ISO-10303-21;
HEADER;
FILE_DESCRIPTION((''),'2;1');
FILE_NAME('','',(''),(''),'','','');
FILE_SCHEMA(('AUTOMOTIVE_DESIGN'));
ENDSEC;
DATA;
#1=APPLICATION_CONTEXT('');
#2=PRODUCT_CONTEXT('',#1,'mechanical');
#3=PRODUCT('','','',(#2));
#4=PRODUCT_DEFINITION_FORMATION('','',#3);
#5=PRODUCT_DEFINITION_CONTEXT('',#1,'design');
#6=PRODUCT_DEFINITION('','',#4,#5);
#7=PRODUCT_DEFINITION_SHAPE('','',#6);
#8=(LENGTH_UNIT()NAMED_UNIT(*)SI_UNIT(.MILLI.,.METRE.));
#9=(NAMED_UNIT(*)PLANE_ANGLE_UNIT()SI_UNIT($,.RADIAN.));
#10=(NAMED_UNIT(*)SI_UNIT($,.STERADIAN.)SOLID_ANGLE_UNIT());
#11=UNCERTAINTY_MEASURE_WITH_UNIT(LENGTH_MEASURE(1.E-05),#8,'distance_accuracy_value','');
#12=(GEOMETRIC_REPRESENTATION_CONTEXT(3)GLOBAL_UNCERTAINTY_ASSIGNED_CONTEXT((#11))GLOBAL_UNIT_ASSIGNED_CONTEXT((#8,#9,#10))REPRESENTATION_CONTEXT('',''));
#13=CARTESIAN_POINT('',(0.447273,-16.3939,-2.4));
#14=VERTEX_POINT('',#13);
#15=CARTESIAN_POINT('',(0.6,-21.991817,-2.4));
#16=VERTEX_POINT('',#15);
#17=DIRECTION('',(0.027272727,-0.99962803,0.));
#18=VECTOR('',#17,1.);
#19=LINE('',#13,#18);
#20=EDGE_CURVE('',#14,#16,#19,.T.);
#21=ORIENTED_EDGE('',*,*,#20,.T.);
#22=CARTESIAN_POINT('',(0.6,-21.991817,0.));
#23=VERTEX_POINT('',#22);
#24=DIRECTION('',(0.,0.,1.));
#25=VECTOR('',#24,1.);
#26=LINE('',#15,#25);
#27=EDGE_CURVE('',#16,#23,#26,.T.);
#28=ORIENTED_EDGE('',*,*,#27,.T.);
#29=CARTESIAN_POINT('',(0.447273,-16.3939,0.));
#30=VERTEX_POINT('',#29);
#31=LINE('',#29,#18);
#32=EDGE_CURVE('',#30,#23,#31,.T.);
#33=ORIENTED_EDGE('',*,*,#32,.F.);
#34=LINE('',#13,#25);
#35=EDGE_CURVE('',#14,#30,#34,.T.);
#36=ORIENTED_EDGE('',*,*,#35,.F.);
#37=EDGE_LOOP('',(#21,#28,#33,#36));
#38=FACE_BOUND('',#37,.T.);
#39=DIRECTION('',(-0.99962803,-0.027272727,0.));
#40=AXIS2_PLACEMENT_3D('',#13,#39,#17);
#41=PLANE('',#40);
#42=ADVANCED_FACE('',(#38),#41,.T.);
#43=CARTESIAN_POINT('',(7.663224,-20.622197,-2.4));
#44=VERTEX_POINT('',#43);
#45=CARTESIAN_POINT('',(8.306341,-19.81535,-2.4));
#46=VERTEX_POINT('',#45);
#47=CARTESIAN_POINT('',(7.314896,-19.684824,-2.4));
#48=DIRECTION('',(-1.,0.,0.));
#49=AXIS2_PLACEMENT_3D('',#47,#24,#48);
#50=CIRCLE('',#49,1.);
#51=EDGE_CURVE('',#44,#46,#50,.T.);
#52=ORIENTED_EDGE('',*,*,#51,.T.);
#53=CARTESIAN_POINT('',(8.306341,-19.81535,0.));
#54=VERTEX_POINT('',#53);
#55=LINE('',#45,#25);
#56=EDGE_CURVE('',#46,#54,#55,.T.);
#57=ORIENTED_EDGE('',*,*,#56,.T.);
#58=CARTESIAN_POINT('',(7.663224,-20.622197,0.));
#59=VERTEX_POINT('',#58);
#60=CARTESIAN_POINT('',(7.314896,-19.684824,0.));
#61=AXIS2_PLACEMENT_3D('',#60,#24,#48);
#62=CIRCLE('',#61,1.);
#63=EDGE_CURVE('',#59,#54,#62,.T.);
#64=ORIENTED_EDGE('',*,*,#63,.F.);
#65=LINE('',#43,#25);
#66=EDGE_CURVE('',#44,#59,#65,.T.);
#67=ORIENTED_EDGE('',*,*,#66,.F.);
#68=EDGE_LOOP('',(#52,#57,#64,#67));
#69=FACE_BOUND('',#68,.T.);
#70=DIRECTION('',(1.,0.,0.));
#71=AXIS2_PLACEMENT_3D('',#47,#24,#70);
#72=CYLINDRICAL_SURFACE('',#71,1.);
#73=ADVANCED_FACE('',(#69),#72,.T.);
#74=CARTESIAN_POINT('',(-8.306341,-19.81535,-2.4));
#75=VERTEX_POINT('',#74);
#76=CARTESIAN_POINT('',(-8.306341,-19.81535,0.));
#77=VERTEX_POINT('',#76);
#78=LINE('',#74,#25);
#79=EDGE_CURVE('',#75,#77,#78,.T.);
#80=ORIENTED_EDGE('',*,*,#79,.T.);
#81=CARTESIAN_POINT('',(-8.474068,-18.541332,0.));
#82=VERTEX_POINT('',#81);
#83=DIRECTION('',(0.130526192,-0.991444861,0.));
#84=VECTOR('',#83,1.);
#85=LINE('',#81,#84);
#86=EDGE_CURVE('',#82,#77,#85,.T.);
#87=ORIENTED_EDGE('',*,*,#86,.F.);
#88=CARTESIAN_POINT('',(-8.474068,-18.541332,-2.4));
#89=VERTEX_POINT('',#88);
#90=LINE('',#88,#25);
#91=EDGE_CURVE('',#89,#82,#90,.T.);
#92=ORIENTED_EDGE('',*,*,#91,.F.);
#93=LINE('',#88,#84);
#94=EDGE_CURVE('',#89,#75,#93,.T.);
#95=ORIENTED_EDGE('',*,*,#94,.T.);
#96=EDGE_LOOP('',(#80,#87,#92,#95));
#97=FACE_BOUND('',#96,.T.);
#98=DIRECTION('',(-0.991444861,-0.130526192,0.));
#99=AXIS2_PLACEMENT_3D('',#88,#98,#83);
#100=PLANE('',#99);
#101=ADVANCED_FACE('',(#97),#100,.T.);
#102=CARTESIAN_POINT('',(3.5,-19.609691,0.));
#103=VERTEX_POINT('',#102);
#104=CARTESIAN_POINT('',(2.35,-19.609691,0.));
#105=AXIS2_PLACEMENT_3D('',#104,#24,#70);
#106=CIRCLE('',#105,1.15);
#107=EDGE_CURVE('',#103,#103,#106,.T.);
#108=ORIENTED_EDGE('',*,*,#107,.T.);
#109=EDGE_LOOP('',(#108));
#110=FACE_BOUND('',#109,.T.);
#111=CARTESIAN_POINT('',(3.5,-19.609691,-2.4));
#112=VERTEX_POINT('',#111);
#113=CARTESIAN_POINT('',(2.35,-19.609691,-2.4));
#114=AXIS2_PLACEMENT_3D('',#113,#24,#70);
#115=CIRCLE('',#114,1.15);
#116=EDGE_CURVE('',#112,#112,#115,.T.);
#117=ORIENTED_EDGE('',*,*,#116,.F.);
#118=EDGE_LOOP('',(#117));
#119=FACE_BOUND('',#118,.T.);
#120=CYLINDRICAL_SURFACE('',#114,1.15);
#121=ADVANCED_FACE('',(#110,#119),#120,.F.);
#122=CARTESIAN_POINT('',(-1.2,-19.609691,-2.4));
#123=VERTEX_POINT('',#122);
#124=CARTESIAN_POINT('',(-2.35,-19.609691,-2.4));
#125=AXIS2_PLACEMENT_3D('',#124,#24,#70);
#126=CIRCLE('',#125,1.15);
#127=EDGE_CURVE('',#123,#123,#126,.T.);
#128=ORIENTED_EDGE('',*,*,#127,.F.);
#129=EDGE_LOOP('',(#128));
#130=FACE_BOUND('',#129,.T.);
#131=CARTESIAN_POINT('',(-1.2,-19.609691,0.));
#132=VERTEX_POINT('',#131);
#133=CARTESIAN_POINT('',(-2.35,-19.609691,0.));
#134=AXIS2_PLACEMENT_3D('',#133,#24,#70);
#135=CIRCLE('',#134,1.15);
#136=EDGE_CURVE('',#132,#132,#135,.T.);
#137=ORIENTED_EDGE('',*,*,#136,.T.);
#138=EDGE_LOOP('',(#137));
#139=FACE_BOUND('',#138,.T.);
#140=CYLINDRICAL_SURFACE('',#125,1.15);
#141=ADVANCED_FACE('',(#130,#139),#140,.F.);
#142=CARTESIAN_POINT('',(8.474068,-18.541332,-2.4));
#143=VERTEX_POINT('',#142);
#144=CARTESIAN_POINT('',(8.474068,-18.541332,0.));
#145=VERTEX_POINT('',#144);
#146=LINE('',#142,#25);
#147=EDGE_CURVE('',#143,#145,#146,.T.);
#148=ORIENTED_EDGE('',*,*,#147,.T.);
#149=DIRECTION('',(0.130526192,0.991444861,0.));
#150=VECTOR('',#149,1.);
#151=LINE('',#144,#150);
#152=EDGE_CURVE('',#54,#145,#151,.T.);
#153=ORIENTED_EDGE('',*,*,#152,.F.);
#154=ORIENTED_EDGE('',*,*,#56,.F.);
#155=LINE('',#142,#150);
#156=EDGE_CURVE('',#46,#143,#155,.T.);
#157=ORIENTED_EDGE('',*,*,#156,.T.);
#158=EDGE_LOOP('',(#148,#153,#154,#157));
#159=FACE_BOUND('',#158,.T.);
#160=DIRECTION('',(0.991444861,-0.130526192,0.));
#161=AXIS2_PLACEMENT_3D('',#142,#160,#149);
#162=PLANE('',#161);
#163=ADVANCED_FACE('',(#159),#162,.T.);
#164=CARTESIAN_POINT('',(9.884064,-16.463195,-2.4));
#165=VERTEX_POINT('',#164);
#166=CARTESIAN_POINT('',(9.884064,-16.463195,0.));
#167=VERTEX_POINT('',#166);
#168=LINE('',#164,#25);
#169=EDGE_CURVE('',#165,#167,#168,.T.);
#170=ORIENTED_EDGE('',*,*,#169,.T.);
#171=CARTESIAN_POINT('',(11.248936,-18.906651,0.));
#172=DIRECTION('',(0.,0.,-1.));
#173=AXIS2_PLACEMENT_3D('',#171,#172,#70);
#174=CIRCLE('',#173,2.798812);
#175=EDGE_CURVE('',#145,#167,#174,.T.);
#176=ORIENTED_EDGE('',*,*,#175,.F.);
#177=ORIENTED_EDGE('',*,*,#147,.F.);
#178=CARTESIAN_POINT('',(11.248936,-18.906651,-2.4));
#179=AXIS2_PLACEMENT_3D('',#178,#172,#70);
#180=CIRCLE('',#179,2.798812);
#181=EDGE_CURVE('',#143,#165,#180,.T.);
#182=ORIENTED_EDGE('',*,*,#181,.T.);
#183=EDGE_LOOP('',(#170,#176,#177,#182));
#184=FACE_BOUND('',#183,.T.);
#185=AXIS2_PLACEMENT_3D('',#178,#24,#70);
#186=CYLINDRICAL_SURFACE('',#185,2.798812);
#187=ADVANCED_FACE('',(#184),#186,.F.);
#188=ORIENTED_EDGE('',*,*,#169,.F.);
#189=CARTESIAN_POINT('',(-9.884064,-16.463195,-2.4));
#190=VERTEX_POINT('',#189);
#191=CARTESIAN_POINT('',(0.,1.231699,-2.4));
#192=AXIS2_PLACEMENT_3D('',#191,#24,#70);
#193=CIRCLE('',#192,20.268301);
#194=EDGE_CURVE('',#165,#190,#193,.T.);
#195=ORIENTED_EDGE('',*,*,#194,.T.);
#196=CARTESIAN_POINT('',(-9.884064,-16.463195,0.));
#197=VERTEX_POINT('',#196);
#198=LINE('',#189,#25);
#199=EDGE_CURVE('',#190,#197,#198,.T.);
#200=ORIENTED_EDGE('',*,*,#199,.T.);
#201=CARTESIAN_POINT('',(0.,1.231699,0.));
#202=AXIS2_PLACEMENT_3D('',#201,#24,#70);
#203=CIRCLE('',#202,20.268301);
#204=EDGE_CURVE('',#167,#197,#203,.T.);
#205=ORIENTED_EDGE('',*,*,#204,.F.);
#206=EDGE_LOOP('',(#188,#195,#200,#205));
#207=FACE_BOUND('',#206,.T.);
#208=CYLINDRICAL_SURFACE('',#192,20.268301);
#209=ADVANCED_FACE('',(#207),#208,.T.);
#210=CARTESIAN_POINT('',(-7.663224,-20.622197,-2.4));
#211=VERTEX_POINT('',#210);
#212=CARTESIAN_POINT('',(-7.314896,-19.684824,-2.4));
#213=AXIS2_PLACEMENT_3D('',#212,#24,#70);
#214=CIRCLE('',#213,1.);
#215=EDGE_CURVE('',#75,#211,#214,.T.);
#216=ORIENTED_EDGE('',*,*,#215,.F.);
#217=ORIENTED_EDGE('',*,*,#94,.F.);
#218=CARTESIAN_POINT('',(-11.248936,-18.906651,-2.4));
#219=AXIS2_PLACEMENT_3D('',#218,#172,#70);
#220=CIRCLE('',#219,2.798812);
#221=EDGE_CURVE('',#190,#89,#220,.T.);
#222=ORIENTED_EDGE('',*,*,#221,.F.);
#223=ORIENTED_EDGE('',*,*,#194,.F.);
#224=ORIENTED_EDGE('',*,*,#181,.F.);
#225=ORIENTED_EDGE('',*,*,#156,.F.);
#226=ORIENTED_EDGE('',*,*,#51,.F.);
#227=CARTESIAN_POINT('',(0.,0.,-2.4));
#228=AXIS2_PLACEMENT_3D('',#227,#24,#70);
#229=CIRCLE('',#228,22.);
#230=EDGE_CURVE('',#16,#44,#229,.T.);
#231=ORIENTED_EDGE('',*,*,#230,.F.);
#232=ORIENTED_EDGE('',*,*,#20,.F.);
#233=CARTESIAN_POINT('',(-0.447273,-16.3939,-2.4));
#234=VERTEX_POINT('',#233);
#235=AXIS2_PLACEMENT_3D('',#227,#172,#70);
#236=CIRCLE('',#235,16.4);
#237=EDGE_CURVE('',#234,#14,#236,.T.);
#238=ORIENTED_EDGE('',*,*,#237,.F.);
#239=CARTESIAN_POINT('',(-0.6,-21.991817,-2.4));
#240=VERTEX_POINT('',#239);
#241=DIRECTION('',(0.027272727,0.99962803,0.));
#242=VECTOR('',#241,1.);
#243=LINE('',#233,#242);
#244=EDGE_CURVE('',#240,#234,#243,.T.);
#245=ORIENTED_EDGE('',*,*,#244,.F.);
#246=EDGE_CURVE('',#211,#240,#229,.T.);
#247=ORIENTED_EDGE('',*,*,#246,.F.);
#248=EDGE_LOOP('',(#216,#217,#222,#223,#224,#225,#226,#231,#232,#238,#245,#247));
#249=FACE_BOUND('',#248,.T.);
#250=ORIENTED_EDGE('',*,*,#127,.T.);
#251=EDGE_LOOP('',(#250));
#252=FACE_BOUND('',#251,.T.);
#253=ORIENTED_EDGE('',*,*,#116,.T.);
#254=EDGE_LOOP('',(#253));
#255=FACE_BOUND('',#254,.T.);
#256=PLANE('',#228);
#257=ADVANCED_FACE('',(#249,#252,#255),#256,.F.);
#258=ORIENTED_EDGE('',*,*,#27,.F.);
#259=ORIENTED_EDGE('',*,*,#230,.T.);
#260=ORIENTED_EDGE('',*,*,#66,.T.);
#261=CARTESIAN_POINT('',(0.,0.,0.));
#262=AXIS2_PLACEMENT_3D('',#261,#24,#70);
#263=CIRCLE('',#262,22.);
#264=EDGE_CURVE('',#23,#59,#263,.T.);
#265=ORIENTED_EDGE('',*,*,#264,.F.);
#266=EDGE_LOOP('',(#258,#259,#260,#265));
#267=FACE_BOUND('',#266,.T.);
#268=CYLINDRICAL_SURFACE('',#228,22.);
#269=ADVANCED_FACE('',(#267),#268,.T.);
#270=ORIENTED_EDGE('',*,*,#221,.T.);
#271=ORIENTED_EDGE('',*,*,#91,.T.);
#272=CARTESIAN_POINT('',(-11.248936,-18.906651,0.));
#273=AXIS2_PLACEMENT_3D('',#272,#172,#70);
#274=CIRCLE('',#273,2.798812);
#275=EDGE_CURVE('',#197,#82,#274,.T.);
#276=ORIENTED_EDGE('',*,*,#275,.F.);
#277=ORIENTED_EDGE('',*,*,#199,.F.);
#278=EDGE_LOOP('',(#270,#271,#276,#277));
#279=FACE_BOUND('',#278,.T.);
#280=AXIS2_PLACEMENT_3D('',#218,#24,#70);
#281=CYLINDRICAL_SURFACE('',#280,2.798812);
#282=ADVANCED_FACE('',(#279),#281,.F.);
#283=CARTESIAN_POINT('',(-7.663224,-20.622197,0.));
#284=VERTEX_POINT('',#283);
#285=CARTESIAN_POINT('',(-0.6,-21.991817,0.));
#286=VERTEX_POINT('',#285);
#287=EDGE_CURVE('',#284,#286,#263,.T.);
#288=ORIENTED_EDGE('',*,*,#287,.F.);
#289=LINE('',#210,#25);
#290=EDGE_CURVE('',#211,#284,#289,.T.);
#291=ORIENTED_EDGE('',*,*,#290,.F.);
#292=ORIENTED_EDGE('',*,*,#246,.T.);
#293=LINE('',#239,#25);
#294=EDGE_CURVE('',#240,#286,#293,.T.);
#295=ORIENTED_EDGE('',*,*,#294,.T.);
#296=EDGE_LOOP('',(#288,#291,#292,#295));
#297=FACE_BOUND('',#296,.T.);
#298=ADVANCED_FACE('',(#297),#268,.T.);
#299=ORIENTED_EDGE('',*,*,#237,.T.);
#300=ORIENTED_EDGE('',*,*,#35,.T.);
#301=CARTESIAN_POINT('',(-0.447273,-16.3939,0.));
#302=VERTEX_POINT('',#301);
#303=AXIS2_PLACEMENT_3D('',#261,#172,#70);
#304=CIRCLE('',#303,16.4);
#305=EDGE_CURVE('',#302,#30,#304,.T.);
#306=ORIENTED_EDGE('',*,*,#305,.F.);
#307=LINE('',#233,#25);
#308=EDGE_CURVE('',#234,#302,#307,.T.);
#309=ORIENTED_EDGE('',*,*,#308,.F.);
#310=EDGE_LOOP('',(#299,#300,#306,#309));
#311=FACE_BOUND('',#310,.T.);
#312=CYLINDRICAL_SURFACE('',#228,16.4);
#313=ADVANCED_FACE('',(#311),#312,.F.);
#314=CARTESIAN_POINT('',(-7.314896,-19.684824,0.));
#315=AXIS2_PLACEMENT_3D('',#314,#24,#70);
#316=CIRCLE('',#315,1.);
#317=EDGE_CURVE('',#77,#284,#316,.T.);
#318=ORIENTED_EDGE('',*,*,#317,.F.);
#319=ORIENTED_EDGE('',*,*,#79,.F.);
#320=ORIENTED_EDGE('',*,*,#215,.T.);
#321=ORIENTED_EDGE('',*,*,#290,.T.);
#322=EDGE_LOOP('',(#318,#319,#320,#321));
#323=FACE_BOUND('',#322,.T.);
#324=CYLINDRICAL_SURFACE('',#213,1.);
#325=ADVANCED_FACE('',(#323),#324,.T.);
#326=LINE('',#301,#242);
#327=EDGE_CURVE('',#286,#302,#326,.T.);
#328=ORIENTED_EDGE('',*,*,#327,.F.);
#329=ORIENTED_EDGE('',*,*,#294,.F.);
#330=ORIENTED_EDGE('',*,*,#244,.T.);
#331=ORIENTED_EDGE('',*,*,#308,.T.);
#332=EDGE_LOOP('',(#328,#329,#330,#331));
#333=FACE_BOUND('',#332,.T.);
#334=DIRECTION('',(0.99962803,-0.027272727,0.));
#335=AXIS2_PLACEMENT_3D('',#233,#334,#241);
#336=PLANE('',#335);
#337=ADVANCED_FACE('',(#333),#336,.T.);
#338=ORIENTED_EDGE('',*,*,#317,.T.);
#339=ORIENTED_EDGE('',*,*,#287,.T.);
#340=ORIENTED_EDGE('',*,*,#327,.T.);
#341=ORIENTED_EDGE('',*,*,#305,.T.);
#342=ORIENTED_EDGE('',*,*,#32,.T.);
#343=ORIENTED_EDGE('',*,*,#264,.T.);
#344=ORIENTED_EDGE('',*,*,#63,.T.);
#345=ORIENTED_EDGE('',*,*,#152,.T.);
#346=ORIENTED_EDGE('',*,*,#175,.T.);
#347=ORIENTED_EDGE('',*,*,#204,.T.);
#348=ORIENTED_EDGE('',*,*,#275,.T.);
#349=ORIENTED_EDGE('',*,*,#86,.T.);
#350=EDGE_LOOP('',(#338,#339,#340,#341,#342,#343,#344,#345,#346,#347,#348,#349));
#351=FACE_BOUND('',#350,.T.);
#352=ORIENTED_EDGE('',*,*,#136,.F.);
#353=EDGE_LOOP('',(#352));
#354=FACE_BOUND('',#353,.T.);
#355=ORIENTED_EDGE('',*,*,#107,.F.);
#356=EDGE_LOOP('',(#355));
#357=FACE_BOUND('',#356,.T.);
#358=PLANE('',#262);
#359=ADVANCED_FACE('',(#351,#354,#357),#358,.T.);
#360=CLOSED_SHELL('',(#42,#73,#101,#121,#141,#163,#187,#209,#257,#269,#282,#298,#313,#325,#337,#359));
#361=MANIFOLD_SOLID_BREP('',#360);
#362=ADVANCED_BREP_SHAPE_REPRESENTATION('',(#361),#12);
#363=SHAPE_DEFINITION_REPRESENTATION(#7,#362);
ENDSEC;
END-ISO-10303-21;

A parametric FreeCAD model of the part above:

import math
import FreeCAD as App
import Part
import Sketcher
Q = App.Units.Quantity

doc = App.newDocument("Part")
body = doc.addObject("PartDesign::Body", "Body")

# Sketch on XY plane
sketch1 = doc.addObject("Sketcher::SketchObject", "Sketch")
body.addObject(sketch1)
sketch1.AttachmentSupport = (doc.XY_Plane, [""])
sketch1.MapMode = "FlatFace"
sketch1.addGeometry(Part.LineSegment(App.Vector(0.4, -16.4, 0), App.Vector(0.6, -22, 0)), False)
sketch1.addGeometry(Part.ArcOfCircle(Part.Circle(App.Vector(0, 0, 0), App.Vector(0, 0, 1), 22), math.radians(-88.44), math.radians(-69.61)), False)
sketch1.addGeometry(Part.ArcOfCircle(Part.Circle(App.Vector(7.3, -19.7, 0), App.Vector(0, 0, 1), 1), math.radians(-70), math.radians(-8)), False)
sketch1.addGeometry(Part.LineSegment(App.Vector(8.3, -19.8, 0), App.Vector(8.5, -18.5, 0)), False)
sketch1.addGeometry(Part.ArcOfCircle(Part.Circle(App.Vector(11.2, -18.9, 0), App.Vector(0, 0, 1), 2.8), math.radians(119), math.radians(173)), False)
sketch1.addGeometry(Part.ArcOfCircle(Part.Circle(App.Vector(0, 1.2, 0), App.Vector(0, 0, 1), 20.3), math.radians(-61), math.radians(241)), False)
sketch1.addGeometry(Part.ArcOfCircle(Part.Circle(App.Vector(-11.2, -18.9, 0), App.Vector(0, 0, 1), 2.8), math.radians(7), math.radians(61)), False)
sketch1.addGeometry(Part.LineSegment(App.Vector(-8.5, -18.5, 0), App.Vector(-8.3, -19.8, 0)), False)
sketch1.addGeometry(Part.ArcOfCircle(Part.Circle(App.Vector(-7.3, -19.7, 0), App.Vector(0, 0, 1), 1), math.radians(-172), math.radians(-110)), False)
sketch1.addGeometry(Part.ArcOfCircle(Part.Circle(App.Vector(0, 0, 0), App.Vector(0, 0, 1), 22), math.radians(-110.39), math.radians(-91.56)), False)
sketch1.addGeometry(Part.LineSegment(App.Vector(-0.6, -22, 0), App.Vector(-0.4, -16.4, 0)), False)
sketch1.addGeometry(Part.ArcOfCircle(Part.Circle(App.Vector(0, 0, 0), App.Vector(0, 0, 1), 16.4), math.radians(-88), math.radians(268)), False)
sketch1.addGeometry(Part.Circle(App.Vector(-2.4, -19.6, 0), App.Vector(0, 0, 1), 1.1), False)
sketch1.addGeometry(Part.Circle(App.Vector(2.4, -19.6, 0), App.Vector(0, 0, 1), 1.1), False)
sketch1.addConstraint(Sketcher.Constraint("Coincident", 0, 2, 1, 1))
sketch1.addConstraint(Sketcher.Constraint("Tangent", 1, 2, 2, 1))
sketch1.addConstraint(Sketcher.Constraint("Tangent", 2, 2, 3, 1))
sketch1.addConstraint(Sketcher.Constraint("Tangent", 3, 2, 4, 2))
sketch1.addConstraint(Sketcher.Constraint("Tangent", 4, 1, 5, 1))
sketch1.addConstraint(Sketcher.Constraint("Tangent", 5, 2, 6, 2))
sketch1.addConstraint(Sketcher.Constraint("Tangent", 6, 1, 7, 1))
sketch1.addConstraint(Sketcher.Constraint("Tangent", 7, 2, 8, 1))
sketch1.addConstraint(Sketcher.Constraint("Tangent", 8, 2, 9, 1))
sketch1.addConstraint(Sketcher.Constraint("Coincident", 9, 2, 10, 1))
sketch1.addConstraint(Sketcher.Constraint("Coincident", 10, 2, 11, 2))
sketch1.addConstraint(Sketcher.Constraint("Coincident", 11, 1, 0, 1))
sketch1.addConstraint(Sketcher.Constraint("Coincident", 1, 3, -1, 1))
sketch1.addConstraint(Sketcher.Constraint("Coincident", 9, 3, -1, 1))
sketch1.addConstraint(Sketcher.Constraint("Coincident", 11, 3, -1, 1))
sketch1.addConstraint(Sketcher.Constraint("Equal", 4, 6))
sketch1.addConstraint(Sketcher.Constraint("Equal", 2, 8))
sketch1.addConstraint(Sketcher.Constraint("Equal", 1, 9))
sketch1.addConstraint(Sketcher.Constraint("Equal", 12, 13))
sketch1.addConstraint(Sketcher.Constraint("Symmetric", 4, 3, 6, 3, -2))
sketch1.addConstraint(Sketcher.Constraint("Symmetric", 12, 3, 13, 3, -2))
sketch1.addConstraint(Sketcher.Constraint("Horizontal", 2, 3, 8, 3))
sketch1.addConstraint(Sketcher.Constraint("Horizontal", 0, 2, 9, 2))
sketch1.addConstraint(Sketcher.Constraint("Horizontal", 10, 2, 11, 1))
sketch1.addConstraint(Sketcher.Constraint("Radius", 1, 22.0))
sketch1.addConstraint(Sketcher.Constraint("Radius", 2, 1.0))
sketch1.addConstraint(Sketcher.Constraint("Diameter", 12, 2.3))
sketch1.addConstraint(Sketcher.Constraint("Radius", 11, 16.4))
sketch1.addConstraint(Sketcher.Constraint("Angle", 3, Q("82.5 deg")))
sketch1.addConstraint(Sketcher.Constraint("DistanceX", -1, 1, 0, 2, 0.6))
sketch1.addConstraint(Sketcher.Constraint("Radius", 5, 20.268301))
sketch1.addConstraint(Sketcher.Constraint("DistanceX", 12, 3, 13, 3, 4.7))
sketch1.addConstraint(Sketcher.Constraint("Radius", 4, 2.798812))
sketch1.addConstraint(Sketcher.Constraint("DistanceY", 1, 2, 4, 1, 4.159001))
sketch1.addConstraint(Sketcher.Constraint("DistanceY", -1, 1, 5, 3, 1.231699))
sketch1.addConstraint(Sketcher.Constraint("DistanceY", 10, 2, -1, 1, 16.3939))
sketch1.addConstraint(Sketcher.Constraint("DistanceY", 12, 3, -1, 1, 19.609691))
pad1 = doc.addObject("PartDesign::Pad", "Pad")
body.addObject(pad1)
pad1.Profile = sketch1
pad1.Length = 2.4
pad1.Reversed = True

doc.recompute()
